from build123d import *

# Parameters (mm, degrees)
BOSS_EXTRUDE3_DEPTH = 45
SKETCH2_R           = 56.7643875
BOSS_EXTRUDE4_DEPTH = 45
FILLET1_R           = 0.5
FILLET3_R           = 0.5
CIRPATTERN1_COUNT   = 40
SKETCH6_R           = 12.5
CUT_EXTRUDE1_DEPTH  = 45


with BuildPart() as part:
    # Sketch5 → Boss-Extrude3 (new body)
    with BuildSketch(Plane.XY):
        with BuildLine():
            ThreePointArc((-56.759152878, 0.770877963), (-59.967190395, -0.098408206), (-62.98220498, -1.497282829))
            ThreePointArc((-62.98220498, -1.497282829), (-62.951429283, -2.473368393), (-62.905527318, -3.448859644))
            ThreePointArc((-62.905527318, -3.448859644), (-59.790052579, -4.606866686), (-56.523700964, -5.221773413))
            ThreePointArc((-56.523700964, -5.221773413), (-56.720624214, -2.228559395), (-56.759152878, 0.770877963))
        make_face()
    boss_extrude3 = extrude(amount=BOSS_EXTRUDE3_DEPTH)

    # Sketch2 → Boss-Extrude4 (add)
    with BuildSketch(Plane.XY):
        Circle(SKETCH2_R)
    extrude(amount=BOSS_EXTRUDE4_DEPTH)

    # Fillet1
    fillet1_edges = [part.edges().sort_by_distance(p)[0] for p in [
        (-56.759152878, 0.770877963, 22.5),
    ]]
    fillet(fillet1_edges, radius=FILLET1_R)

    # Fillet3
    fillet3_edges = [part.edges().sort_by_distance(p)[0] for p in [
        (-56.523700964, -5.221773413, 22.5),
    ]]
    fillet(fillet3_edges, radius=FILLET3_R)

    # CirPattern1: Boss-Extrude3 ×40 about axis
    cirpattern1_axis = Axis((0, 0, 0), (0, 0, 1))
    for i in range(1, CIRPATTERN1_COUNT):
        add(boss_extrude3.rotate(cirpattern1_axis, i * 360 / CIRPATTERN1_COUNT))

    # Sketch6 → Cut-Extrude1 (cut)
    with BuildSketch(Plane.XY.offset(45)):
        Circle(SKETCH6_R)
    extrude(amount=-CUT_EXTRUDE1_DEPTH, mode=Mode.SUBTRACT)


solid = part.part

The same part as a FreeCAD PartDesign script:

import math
import FreeCAD as App
import Part
import Sketcher

V = App.Vector
Q = App.Units.Quantity


def edges_at(feature, points):
    """Names of the edges that pass closest to the given points."""
    edges = feature.Shape.Edges
    near = lambda p: min(range(len(edges)), key=lambda i: edges[i].distToShape(Part.Vertex(*p))[0])
    return sorted({f"Edge{near(p) + 1}" for p in points})

doc = App.newDocument("Part")
body = doc.addObject("PartDesign::Body", "Body")

# Sketch on XY plane
sketch1 = doc.addObject("Sketcher::SketchObject", "Sketch")
body.addObject(sketch1)
sketch1.AttachmentSupport = (doc.XY_Plane, [""])
sketch1.MapMode = "FlatFace"
sketch1.addGeometry(Part.ArcOfCircle(Part.Circle(V(-53.255797, -18.51216, 0), V(0, 0, 1), 19.5987), math.radians(100.297221), math.radians(119.754072)), False)
sketch1.addGeometry(Part.ArcOfCircle(Part.Circle(V(0.000002, 0, 0), V(0, 0, 1), 63.000002), math.radians(-178.638158), math.radians(-176.861842)), False)
sketch1.addGeometry(Part.ArcOfCircle(Part.Circle(V(-54.544075, 14.276691, 0), V(0, 0, 1), 19.5987), math.radians(-115.254072), math.radians(-95.797221)), False)
sketch1.addGeometry(Part.ArcOfCircle(Part.Circle(V(0, 0, 0), V(0, 0, 1), 56.764388), math.radians(179.221882), math.radians(185.278118)), False)
sketch1.addConstraint(Sketcher.Constraint("Coincident", 0, 2, 1, 1))
sketch1.addConstraint(Sketcher.Constraint("Coincident", 1, 2, 2, 1))
sketch1.addConstraint(Sketcher.Constraint("Coincident", 2, 2, 3, 2))
sketch1.addConstraint(Sketcher.Constraint("Coincident", 3, 1, 0, 1))
sketch1.addConstraint(Sketcher.Constraint("Coincident", 1, 3, -1, 1))
sketch1.addConstraint(Sketcher.Constraint("Coincident", 3, 3, -1, 1))
sketch1.addConstraint(Sketcher.Constraint("Equal", 0, 2))
sketch1.addConstraint(Sketcher.Constraint("Radius", 1, Q("63.000002 mm")))
sketch1.addConstraint(Sketcher.Constraint("Radius", 0, Q("19.5987 mm")))
sketch1.addConstraint(Sketcher.Constraint("Radius", 3, Q("56.764388 mm")))
sketch1.addConstraint(Sketcher.Constraint("DistanceX", 2, 2, -1, 1, Q("56.523701 mm")))
sketch1.addConstraint(Sketcher.Constraint("DistanceX", 0, 3, 1, 3, Q("53.255799 mm")))
sketch1.addConstraint(Sketcher.Constraint("DistanceY", 0, 3, 1, 2, Q("15.0633 mm")))
sketch1.addConstraint(Sketcher.Constraint("DistanceY", 0, 3, -1, 1, Q("18.51216 mm")))
pad1 = doc.addObject("PartDesign::Pad", "Pad")
body.addObject(pad1)
pad1.Profile = sketch1
pad1.Length = 45

# Sketch on XY plane
sketch2 = doc.addObject("Sketcher::SketchObject", "Sketch001")
body.addObject(sketch2)
sketch2.AttachmentSupport = (doc.XY_Plane, [""])
sketch2.MapMode = "FlatFace"
sketch2.addGeometry(Part.Circle(V(0, 0, 0), V(0, 0, 1), 56.764387), False)
sketch2.addConstraint(Sketcher.Constraint("Coincident", 0, 3, -1, 1))
sketch2.addConstraint(Sketcher.Constraint("Diameter", 0, Q("113.528775 mm")))
pad2 = doc.addObject("PartDesign::Pad", "Pad001")
body.addObject(pad2)
pad2.Profile = sketch2
pad2.Length = 45
doc.recompute()

fillet = doc.addObject("PartDesign::Fillet", "Fillet")
body.addObject(fillet)
fillet.Base = (pad2, edges_at(pad2, [(-56.759, 0.771, 22.5)]))
fillet.Radius = 0.5
doc.recompute()

fillet2 = doc.addObject("PartDesign::Fillet", "Fillet001")
body.addObject(fillet2)
fillet2.Base = (fillet, edges_at(fillet, [(-56.524, -5.222, 22.5)]))
fillet2.Radius = 0.5
doc.recompute()

polarpattern = doc.addObject("PartDesign::PolarPattern", "PolarPattern")
body.addObject(polarpattern)
polarpattern.Originals = [pad1]
polarpattern.Axis = (doc.Z_Axis, [""])
polarpattern.Angle = 360
polarpattern.Occurrences = 40
body.Tip = polarpattern

# Sketch on XY plane
sketch3 = doc.addObject("Sketcher::SketchObject", "Sketch002")
body.addObject(sketch3)
sketch3.AttachmentSupport = (doc.XY_Plane, [""])
sketch3.MapMode = "FlatFace"
sketch3.AttachmentOffset = App.Placement(V(0, 0, 45), App.Rotation())
sketch3.addGeometry(Part.Circle(V(0, 0, 0), V(0, 0, 1), 12.5), False)
sketch3.addConstraint(Sketcher.Constraint("Coincident", 0, 3, -1, 1))
sketch3.addConstraint(Sketcher.Constraint("Diameter", 0, Q("25 mm")))
pocket1 = doc.addObject("PartDesign::Pocket", "Pocket")
body.addObject(pocket1)
pocket1.Profile = sketch3
pocket1.Length = 45

doc.recompute()
